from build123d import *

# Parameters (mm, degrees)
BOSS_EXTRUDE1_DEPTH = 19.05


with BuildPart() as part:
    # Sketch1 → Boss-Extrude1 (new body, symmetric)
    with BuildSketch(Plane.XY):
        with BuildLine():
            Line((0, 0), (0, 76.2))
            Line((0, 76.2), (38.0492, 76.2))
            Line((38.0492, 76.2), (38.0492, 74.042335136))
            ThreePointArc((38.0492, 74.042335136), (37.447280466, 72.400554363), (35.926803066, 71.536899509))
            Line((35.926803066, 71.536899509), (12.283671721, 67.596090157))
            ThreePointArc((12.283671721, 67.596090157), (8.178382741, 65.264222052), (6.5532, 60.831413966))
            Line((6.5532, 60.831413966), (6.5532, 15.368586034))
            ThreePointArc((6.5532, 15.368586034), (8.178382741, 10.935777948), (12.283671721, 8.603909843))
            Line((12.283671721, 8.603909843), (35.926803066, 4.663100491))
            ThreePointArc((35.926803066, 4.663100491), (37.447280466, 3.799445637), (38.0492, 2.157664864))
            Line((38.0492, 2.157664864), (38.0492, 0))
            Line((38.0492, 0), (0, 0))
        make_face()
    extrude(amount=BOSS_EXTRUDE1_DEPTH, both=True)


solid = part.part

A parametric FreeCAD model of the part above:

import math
import FreeCAD as App
import Part
import Sketcher
Q = App.Units.Quantity

doc = App.newDocument("Part")
body = doc.addObject("PartDesign::Body", "Body")

# Sketch on XY plane
sketch1 = doc.addObject("Sketcher::SketchObject", "Sketch")
body.addObject(sketch1)
sketch1.AttachmentSupport = (doc.XY_Plane, [""])
sketch1.MapMode = "FlatFace"
sketch1.addGeometry([
    Part.LineSegment(App.Vector(0, 76.2, 0), App.Vector(0, 0, 0)),  # 0
    Part.LineSegment(App.Vector(0, 0, 0), App.Vector(38.0492, 0, 0)),  # 1
    Part.LineSegment(App.Vector(38.0492, 0, 0), App.Vector(38.0492, 2.157665, 0)),  # 2
    Part.ArcOfCircle(Part.Circle(App.Vector(35.5092, 2.157665, 0), App.Vector(0, 0, 1), 2.54), math.radians(0), math.radians(80.537)),  # 3
    Part.LineSegment(App.Vector(35.926803, 4.6631, 0), App.Vector(12.283672, 8.60391, 0)),  # 4
    Part.ArcOfCircle(Part.Circle(App.Vector(13.4112, 15.368586, 0), App.Vector(0, 0, 1), 6.858), math.radians(-180), math.radians(-99.463)),  # 5
    Part.LineSegment(App.Vector(6.5532, 15.368586, 0), App.Vector(6.5532, 60.831414, 0)),  # 6
    Part.ArcOfCircle(Part.Circle(App.Vector(13.4112, 60.831414, 0), App.Vector(0, 0, 1), 6.858), math.radians(99.463), math.radians(180)),  # 7
    Part.LineSegment(App.Vector(12.283672, 67.59609, 0), App.Vector(35.926803, 71.5369, 0)),  # 8
    Part.ArcOfCircle(Part.Circle(App.Vector(35.5092, 74.042335, 0), App.Vector(0, 0, 1), 2.54), math.radians(-80.537), math.radians(0)),  # 9
    Part.LineSegment(App.Vector(38.0492, 74.042335, 0), App.Vector(38.0492, 76.2, 0)),  # 10
    Part.LineSegment(App.Vector(38.0492, 76.2, 0), App.Vector(0, 76.2, 0)),  # 11
], False)
sketch1.addConstraint([
    Sketcher.Constraint("Coincident", 0, 2, 1, 1),
    Sketcher.Constraint("Coincident", 1, 2, 2, 1),
    Sketcher.Constraint("Coincident", 2, 2, 3, 1),
    Sketcher.Constraint("Coincident", 3, 2, 4, 1),
    Sketcher.Constraint("Coincident", 4, 2, 5, 2),
    Sketcher.Constraint("Coincident", 5, 1, 6, 1),
    Sketcher.Constraint("Coincident", 6, 2, 7, 2),
    Sketcher.Constraint("Coincident", 7, 1, 8, 1),
    Sketcher.Constraint("Coincident", 8, 2, 9, 1),
    Sketcher.Constraint("Coincident", 9, 2, 10, 1),
    Sketcher.Constraint("Coincident", 10, 2, 11, 1),
    Sketcher.Constraint("Coincident", 11, 2, 0, 1),
    Sketcher.Constraint("Vertical", 0),
    Sketcher.Constraint("Horizontal", 1),
    Sketcher.Constraint("Vertical", 2),
    Sketcher.Constraint("Vertical", 6),
    Sketcher.Constraint("Vertical", 10),
    Sketcher.Constraint("Horizontal", 11),
    Sketcher.Constraint("Coincident", 0, 2, -1, 1),
    Sketcher.Constraint("Radius", 3, Q("0.1 in")),
    Sketcher.Constraint("Radius", 9, Q("0.1 in")),
    Sketcher.Constraint("DistanceY", 0, 2, 0, 1, Q("3 in")),
    Sketcher.Constraint("Radius", 5, Q("0.27 in")),
    Sketcher.Constraint("Radius", 7, Q("0.27 in")),
    Sketcher.Constraint("DistanceX", 9, 3, 1, 2, Q("0.1 in")),
    Sketcher.Constraint("DistanceX", 1, 1, 1, 2, Q("1.498 in")),
    Sketcher.Constraint("DistanceX", 5, 3, 3, 3, Q("0.87 in")),
    Sketcher.Constraint("DistanceY", -1, 1, 3, 2, 4.6631),
    Sketcher.Constraint("DistanceY", -1, 1, 8, 2, 71.5369),
    Sketcher.Constraint("DistanceY", 2, 1, 2, 2, 2.157665),
    Sketcher.Constraint("DistanceY", 6, 1, 6, 2, 45.462828),
    Sketcher.Constraint("DistanceY", 10, 1, 10, 2, 2.157665),
    Sketcher.Constraint("DistanceX", -1, 1, 4, 2, 12.283672),
    Sketcher.Constraint("DistanceY", -1, 1, 4, 2, 8.60391),
    Sketcher.Constraint("DistanceX", -1, 1, 7, 1, 12.283672),
    Sketcher.Constraint("DistanceY", -1, 1, 7, 1, 67.59609),
    Sketcher.Constraint("DistanceY", 3, 3, 5, 3, 13.210921),
    Sketcher.Constraint("DistanceY", 7, 3, 9, 3, 13.210921),
    Sketcher.Constraint("DistanceY", 3, 3, 5, 1, 13.210921),
])
pad1 = doc.addObject("PartDesign::Pad", "Pad")
body.addObject(pad1)
pad1.Profile = sketch1
pad1.Length = Q("1.5 in")
pad1.Midplane = True

doc.recompute()
